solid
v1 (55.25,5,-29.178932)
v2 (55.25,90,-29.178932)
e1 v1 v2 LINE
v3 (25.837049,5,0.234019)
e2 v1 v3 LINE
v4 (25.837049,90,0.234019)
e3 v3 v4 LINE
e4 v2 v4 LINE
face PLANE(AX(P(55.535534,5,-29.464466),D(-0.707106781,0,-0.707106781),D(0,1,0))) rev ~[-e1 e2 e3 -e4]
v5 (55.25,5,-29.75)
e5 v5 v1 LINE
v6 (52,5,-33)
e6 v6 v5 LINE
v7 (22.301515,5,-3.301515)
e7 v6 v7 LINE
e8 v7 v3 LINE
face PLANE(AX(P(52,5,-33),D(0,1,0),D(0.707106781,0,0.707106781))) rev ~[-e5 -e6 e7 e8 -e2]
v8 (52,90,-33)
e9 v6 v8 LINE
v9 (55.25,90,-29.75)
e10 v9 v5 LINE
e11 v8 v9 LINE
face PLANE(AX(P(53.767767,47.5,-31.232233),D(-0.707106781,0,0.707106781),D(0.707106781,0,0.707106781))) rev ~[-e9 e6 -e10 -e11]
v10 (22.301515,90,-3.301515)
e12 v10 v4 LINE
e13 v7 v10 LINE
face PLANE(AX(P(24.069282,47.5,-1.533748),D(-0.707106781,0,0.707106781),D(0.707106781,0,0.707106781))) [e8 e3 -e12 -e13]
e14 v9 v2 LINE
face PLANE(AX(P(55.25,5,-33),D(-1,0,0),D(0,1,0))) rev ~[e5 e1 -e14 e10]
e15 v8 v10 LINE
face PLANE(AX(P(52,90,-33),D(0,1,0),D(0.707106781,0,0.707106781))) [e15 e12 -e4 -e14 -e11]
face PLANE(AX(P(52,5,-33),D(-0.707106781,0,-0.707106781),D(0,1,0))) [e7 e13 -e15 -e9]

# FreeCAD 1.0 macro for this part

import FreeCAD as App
import Part
import Sketcher

V = App.Vector
Q = App.Units.Quantity

doc = App.newDocument("Part")
body = doc.addObject("PartDesign::Body", "Body")

# Sketch on XY plane
sketch1 = body.newObject("Sketcher::SketchObject", "Sketch")
sketch1.AttachmentSupport = (doc.getObject("XY_Plane"), [""])
sketch1.MapMode = "FlatFace"
sketch1.AttachmentOffset = App.Placement(V(0, 0, -33), App.Rotation())
sketch1.addGeometry([
    Part.LineSegment(V(55.25, 91, 0), V(55.25, 5, 0)),
    Part.LineSegment(V(55.25, 5, 0), V(65.25, 5, 0)),
    Part.LineSegment(V(65.25, 5, 0), V(65.25, 91, 0)),
    Part.LineSegment(V(65.25, 91, 0), V(55.25, 91, 0)),
], False)
sketch1.addConstraint([
    Sketcher.Constraint("Coincident", 0, 2, 1, 1),
    Sketcher.Constraint("Coincident", 1, 2, 2, 1),
    Sketcher.Constraint("Coincident", 2, 2, 3, 1),
    Sketcher.Constraint("Coincident", 3, 2, 0, 1),
    Sketcher.Constraint("Vertical", 0),
    Sketcher.Constraint("Horizontal", 1),
    Sketcher.Constraint("Vertical", 2),
    Sketcher.Constraint("Horizontal", 3),
    Sketcher.Constraint("DistanceX", 1, 1, 1, 2, Q("10 mm")),
    Sketcher.Constraint("DistanceY", 0, 2, 0, 1, Q("86 mm")),
    Sketcher.Constraint("DistanceY", -1, 1, 0, 2, Q("5 mm")),
    Sketcher.Constraint("DistanceX", -1, 1, 0, 2, Q("55.25 mm")),
])
pad1 = body.newObject("PartDesign::Pad", "Pad")
pad1.Profile = sketch1
pad1.Length = 10
body2 = doc.addObject("PartDesign::Body", "Body001")

# Sketch on XY plane
sketch2 = body2.newObject("Sketcher::SketchObject", "Sketch001")
sketch2.AttachmentSupport = (doc.getObject("XY_Plane001"), [""])
sketch2.MapMode = "FlatFace"
sketch2.addGeometry([
    Part.LineSegment(V(0, 85, 0), V(0, 0, 0)),
    Part.LineSegment(V(0, 0, 0), V(5, 0, 0)),
    Part.LineSegment(V(5, 0, 0), V(5, 85, 0)),
    Part.LineSegment(V(5, 85, 0), V(0, 85, 0)),
], False)
sketch2.addConstraint([
    Sketcher.Constraint("Coincident", 0, 2, 1, 1),
    Sketcher.Constraint("Coincident", 1, 2, 2, 1),
    Sketcher.Constraint("Coincident", 2, 2, 3, 1),
    Sketcher.Constraint("Coincident", 3, 2, 0, 1),
    Sketcher.Constraint("Vertical", 0),
    Sketcher.Constraint("Horizontal", 1),
    Sketcher.Constraint("Vertical", 2),
    Sketcher.Constraint("Horizontal", 3),
    Sketcher.Constraint("Coincident", 0, 2, -1, 1),
    Sketcher.Constraint("DistanceX", 1, 1, 1, 2, Q("5 mm")),
    Sketcher.Constraint("DistanceY", 0, 2, 0, 1, Q("85 mm")),
])
pad2 = body2.newObject("PartDesign::Pad", "Pad001")
pad2.Profile = sketch2
pad2.Length = 42
body3 = doc.addObject("PartDesign::Body", "Body002")
doc.recompute()

body2.Placement = App.Placement(V(52, 5, -33), App.Rotation(V(0, 1, 0), 315))
boolean = body3.newObject("PartDesign::Boolean", "Boolean")
boolean.Type = "Fuse"
boolean.addObjects([body2])
doc.recompute()

boolean2 = body3.newObject("PartDesign::Boolean", "Boolean001")
boolean2.Type = "Cut"
boolean2.addObjects([body])

doc.recompute()
